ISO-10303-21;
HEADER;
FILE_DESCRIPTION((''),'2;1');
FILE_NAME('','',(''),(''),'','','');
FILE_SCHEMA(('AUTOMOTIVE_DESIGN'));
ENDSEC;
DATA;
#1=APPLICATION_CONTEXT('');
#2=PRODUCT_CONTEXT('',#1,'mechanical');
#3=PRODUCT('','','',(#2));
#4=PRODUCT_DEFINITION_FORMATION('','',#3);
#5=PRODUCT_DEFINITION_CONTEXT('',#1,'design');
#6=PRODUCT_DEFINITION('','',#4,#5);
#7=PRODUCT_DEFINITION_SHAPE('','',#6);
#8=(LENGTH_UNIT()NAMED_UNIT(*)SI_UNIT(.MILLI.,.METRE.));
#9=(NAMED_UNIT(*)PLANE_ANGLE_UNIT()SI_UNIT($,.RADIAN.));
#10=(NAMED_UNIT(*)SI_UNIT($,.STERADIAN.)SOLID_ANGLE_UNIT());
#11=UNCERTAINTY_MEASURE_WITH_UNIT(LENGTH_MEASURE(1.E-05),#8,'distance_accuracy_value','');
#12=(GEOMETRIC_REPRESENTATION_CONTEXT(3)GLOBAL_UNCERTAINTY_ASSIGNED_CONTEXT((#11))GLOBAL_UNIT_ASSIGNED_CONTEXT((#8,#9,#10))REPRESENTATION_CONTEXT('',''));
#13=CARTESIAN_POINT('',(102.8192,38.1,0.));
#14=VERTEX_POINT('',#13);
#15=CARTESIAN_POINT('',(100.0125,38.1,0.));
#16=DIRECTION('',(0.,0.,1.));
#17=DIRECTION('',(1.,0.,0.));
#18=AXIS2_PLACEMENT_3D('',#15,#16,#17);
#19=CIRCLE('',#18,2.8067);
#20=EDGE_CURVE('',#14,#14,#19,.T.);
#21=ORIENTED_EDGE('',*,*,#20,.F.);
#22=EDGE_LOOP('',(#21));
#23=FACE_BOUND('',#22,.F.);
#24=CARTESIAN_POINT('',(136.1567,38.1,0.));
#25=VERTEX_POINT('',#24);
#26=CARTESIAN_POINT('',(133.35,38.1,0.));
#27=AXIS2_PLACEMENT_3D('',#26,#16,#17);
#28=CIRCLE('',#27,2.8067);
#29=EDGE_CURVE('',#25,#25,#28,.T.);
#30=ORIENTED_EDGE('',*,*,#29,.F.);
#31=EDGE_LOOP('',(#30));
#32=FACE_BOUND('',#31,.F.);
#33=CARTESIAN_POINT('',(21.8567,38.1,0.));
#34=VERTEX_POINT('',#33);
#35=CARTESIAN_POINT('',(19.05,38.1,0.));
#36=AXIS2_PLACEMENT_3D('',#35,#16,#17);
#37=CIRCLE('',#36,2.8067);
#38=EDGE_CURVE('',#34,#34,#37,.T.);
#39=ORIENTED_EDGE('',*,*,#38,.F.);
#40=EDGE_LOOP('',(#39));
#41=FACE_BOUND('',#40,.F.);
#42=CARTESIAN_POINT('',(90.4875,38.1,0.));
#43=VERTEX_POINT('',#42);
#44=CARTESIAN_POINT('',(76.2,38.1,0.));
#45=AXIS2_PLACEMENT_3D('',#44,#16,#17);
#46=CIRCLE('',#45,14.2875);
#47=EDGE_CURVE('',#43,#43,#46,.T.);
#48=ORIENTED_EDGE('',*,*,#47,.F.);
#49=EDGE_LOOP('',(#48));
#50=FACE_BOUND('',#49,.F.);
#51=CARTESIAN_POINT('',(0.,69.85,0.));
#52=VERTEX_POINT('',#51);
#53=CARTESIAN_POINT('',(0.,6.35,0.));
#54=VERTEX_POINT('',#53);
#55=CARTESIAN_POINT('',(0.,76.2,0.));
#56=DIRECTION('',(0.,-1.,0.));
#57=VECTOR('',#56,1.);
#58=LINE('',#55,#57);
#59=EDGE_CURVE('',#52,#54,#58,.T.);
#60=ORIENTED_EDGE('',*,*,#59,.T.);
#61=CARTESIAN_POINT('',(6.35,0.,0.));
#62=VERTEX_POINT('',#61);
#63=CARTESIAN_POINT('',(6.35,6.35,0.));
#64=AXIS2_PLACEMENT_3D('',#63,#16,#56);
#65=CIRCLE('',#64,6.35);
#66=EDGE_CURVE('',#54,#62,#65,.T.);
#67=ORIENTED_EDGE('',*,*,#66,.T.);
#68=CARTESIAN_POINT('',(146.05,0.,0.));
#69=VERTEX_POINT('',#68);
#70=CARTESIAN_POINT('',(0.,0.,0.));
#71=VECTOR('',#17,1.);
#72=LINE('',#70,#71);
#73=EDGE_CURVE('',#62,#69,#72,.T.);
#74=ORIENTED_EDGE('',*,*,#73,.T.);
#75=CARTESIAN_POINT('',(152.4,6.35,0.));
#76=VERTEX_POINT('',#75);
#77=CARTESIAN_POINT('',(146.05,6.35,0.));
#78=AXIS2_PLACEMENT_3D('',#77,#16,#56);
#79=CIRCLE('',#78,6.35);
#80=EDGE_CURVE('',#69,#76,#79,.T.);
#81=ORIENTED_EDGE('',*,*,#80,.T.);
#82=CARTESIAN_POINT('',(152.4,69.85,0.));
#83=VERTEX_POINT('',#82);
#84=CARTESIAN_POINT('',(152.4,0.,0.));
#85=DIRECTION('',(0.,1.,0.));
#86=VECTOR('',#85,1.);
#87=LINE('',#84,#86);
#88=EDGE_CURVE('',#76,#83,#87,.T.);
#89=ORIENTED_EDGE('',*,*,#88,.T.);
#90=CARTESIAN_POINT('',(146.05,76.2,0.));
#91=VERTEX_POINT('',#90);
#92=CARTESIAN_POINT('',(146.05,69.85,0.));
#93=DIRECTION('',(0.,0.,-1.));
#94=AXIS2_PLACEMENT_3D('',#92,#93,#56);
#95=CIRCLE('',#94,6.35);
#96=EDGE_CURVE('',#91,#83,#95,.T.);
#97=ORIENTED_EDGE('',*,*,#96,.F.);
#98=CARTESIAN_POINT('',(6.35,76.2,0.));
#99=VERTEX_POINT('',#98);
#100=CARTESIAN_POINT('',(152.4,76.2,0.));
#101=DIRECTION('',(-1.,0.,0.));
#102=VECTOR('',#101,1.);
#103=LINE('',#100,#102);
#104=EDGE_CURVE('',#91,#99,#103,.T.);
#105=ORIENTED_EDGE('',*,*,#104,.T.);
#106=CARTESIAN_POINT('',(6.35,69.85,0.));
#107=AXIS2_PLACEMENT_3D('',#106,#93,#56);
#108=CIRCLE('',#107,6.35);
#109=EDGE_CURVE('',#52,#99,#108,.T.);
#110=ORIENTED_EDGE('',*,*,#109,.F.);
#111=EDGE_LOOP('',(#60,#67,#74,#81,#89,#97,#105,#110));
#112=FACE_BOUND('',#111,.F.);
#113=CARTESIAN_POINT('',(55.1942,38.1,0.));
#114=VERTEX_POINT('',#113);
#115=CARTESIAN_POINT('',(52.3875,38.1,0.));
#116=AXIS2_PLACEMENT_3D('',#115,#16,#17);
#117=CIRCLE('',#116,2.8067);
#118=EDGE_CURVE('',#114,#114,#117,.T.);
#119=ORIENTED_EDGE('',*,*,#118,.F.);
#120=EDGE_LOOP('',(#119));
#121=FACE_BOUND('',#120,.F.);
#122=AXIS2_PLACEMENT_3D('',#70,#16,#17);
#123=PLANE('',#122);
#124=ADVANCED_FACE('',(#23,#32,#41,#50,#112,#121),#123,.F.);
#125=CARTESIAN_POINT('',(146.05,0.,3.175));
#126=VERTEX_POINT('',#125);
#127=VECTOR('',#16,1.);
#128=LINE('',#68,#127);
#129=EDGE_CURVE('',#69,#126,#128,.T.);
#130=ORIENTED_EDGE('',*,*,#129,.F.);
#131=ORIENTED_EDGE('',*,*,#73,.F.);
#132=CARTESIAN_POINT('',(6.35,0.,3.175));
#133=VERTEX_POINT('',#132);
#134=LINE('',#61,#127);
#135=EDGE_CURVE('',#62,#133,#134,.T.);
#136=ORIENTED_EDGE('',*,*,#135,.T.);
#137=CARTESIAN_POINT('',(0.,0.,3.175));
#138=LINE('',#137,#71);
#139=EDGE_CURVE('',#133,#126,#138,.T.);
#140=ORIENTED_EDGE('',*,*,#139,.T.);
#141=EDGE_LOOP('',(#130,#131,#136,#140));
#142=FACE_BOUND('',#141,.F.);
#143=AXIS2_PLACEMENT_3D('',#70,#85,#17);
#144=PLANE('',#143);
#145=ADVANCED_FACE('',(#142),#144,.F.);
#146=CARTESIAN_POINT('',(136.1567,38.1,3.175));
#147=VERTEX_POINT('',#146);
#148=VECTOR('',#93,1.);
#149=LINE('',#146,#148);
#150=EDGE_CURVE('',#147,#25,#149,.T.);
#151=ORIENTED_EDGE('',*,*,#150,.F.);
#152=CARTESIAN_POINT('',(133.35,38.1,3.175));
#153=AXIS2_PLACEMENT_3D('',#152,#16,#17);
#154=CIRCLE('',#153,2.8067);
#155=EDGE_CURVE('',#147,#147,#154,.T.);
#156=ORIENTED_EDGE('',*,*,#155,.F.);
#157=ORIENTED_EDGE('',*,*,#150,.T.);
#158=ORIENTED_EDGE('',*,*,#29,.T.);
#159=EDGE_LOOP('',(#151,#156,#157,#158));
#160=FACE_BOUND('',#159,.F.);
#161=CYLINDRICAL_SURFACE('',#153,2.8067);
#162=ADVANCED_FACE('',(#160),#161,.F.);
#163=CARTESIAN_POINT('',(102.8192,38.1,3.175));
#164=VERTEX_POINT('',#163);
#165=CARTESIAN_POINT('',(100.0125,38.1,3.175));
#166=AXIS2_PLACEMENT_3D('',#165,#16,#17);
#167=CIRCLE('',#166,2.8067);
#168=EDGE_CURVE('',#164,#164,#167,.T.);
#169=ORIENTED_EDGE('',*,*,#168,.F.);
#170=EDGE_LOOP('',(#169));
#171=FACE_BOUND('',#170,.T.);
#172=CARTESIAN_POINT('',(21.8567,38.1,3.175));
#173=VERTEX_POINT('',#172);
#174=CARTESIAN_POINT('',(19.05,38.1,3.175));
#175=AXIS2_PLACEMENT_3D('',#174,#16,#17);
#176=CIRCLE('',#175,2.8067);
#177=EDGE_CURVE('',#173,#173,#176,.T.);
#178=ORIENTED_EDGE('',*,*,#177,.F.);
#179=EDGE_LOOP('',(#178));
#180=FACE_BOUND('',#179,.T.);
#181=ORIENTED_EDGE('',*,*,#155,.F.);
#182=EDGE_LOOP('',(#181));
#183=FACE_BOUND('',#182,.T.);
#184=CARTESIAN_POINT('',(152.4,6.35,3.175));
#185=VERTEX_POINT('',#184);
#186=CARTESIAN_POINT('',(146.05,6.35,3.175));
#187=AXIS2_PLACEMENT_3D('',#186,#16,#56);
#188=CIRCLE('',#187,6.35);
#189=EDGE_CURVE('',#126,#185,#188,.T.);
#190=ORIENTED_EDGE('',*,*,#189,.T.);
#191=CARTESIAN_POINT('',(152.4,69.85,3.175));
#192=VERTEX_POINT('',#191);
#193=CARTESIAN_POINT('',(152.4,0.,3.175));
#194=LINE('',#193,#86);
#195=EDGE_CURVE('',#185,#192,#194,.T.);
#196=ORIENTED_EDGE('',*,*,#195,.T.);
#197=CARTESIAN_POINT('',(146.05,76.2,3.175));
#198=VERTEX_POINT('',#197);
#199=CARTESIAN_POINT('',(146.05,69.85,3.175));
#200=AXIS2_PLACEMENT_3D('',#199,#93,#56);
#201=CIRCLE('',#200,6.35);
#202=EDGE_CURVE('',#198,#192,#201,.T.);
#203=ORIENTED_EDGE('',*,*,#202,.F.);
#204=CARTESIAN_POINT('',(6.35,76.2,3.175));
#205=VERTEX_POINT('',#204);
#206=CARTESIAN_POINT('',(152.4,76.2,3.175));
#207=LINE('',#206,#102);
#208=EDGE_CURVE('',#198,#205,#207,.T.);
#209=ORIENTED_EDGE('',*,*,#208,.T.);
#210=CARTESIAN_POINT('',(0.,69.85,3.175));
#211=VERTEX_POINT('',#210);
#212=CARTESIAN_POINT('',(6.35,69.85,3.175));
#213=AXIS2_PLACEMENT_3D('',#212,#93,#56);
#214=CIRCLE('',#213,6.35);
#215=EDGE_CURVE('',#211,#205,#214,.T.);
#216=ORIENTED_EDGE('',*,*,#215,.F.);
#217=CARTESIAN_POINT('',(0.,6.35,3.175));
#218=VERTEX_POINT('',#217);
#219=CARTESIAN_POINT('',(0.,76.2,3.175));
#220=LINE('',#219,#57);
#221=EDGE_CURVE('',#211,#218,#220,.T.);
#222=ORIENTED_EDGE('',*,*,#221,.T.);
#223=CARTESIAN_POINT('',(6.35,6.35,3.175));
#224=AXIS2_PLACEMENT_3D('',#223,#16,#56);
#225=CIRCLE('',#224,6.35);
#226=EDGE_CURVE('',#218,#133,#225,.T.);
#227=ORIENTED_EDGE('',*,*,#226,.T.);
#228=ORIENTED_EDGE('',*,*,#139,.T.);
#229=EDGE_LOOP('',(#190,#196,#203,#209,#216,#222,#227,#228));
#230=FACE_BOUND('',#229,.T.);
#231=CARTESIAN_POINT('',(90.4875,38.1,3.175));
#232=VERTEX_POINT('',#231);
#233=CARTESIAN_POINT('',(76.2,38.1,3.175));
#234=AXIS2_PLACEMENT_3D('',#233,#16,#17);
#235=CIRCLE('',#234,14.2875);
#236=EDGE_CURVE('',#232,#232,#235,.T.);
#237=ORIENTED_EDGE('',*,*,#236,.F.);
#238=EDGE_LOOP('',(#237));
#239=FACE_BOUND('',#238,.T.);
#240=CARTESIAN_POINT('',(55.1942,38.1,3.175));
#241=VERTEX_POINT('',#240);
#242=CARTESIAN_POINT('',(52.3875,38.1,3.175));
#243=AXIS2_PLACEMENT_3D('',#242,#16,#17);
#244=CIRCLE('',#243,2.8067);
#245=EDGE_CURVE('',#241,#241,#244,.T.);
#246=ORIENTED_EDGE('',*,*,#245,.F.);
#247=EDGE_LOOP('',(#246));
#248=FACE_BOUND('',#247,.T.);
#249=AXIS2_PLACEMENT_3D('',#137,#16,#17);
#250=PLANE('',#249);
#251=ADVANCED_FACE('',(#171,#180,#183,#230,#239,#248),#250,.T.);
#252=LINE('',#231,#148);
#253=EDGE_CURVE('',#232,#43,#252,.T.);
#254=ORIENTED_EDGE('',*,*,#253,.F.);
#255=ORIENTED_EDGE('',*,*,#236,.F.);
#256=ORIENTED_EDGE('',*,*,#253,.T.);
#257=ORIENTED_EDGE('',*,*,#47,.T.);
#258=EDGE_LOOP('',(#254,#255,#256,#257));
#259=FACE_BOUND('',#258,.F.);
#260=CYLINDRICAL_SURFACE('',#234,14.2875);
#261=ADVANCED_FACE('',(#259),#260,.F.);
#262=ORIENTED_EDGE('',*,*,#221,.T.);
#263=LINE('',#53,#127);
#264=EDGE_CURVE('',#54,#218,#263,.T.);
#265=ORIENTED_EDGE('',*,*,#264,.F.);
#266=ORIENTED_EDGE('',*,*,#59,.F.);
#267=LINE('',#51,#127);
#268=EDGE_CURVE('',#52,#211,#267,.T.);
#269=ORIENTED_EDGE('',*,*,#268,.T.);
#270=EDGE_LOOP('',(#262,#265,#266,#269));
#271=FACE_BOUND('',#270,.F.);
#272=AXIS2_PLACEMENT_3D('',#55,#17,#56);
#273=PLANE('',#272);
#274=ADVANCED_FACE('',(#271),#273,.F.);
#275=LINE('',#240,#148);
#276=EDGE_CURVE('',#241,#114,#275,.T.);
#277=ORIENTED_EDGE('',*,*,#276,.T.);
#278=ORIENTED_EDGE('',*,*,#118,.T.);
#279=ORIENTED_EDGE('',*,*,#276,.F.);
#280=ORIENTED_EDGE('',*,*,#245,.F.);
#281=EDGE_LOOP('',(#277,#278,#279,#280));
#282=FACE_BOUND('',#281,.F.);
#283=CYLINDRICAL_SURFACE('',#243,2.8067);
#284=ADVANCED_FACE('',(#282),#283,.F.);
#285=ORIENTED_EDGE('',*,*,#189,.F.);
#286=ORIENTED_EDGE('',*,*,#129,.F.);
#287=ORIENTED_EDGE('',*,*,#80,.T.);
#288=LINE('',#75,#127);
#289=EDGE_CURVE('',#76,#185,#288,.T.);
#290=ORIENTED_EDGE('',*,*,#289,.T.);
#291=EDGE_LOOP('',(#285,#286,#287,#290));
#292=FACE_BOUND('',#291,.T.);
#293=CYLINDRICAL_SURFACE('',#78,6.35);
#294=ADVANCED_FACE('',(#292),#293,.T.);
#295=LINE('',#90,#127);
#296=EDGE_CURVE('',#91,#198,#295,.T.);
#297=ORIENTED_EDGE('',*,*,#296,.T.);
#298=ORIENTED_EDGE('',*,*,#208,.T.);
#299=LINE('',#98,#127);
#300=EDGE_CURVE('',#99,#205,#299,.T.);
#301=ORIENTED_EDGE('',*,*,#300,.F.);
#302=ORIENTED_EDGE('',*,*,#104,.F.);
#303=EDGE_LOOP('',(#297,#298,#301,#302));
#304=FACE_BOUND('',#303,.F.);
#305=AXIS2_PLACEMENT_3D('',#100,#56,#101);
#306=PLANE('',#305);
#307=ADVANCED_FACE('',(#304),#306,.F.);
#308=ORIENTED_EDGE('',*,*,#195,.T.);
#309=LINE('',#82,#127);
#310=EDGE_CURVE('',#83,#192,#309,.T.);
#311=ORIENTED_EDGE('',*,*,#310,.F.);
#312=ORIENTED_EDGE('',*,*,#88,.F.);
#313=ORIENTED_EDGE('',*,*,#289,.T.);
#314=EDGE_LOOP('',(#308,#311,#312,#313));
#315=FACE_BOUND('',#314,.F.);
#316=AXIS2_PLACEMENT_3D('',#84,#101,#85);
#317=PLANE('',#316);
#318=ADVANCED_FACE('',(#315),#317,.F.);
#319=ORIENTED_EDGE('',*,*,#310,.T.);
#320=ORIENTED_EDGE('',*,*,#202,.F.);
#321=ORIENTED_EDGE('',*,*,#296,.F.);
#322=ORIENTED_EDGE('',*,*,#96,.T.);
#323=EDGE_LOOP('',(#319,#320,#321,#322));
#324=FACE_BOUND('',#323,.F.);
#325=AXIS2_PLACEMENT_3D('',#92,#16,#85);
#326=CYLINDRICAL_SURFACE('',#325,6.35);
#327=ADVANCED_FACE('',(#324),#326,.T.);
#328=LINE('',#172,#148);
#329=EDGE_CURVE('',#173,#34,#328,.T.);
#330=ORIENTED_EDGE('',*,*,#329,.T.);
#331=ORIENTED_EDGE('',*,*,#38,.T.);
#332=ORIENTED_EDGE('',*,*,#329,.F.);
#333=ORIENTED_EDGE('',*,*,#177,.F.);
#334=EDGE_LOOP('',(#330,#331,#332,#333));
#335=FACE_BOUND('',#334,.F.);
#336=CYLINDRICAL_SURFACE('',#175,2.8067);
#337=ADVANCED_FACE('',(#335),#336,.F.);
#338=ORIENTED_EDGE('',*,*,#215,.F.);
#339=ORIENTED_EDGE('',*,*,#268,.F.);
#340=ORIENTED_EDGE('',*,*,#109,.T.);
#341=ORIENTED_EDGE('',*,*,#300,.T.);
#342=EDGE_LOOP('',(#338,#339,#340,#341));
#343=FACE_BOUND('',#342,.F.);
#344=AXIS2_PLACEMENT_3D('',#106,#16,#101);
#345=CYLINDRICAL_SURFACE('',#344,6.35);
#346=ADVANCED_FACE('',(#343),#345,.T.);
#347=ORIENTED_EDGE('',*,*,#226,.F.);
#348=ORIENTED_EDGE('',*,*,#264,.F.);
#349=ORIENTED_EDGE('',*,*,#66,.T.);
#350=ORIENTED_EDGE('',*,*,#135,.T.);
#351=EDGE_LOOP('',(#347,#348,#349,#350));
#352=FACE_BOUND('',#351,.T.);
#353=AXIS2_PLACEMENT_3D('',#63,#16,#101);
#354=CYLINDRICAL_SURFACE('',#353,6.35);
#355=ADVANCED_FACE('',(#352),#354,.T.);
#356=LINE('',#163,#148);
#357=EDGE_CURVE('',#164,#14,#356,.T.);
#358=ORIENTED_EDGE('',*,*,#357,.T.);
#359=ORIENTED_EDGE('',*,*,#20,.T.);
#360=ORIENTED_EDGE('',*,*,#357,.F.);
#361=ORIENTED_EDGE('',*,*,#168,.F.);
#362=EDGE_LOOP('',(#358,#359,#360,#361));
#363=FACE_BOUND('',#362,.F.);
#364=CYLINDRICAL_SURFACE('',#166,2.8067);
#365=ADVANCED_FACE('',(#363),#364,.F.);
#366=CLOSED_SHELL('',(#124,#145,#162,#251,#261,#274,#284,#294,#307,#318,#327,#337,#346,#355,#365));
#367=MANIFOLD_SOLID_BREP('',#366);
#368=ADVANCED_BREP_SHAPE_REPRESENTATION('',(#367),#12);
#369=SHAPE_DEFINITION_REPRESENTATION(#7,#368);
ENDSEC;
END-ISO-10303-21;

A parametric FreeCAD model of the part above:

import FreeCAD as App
import Part
import Sketcher
Q = App.Units.Quantity


def edges_at(feature, points):
    """Names of the edges that pass closest to the given points."""
    edges = feature.Shape.Edges
    near = lambda p: min(range(len(edges)), key=lambda i: edges[i].distToShape(Part.Vertex(*p))[0])
    return sorted({f"Edge{near(p) + 1}" for p in points})


def add_polygon(sketch, points):
    """Adds a closed chain of lines whose ends are joined by coincident constraints."""
    first, n = sketch.GeometryCount, len(points)
    for a, b in zip(points, points[1:] + points[:1]):
        sketch.addGeometry(Part.LineSegment(App.Vector(*a, 0), App.Vector(*b, 0)), False)
    for i in range(n):
        sketch.addConstraint(Sketcher.Constraint("Coincident", first + i, 2, first + (i + 1) % n, 1))

doc = App.newDocument("Part")
params = doc.addObject("Spreadsheet::Sheet", "Params")
for row, (alias, value) in enumerate([
    ("sketch1_width", "6 in"),
    ("sketch1_height", "3 in"),
    ("pad1_length", "0.125 in"),
    ("sketch2_diameter", "1.125 in"),
    ("sketch2_diameter2", "0.221 in"),
    ("pocket1_length", "0.125 in"),
    ("fillet_radius", "0.25 in"),
], start=1):
    params.set(f"A{row}", alias)
    params.set(f"B{row}", "=" + value)
    params.setAlias(f"B{row}", alias)

body = doc.addObject("PartDesign::Body", "Body")

# Sketch on XY plane
sketch1 = body.newObject("Sketcher::SketchObject", "Sketch")
sketch1.AttachmentSupport = (doc.getObject("XY_Plane"), [""])
sketch1.MapMode = "FlatFace"
add_polygon(sketch1, [(0, 76), (0, 0), (152, 0), (152, 76)])  # lines 0-3
sketch1.addConstraint([
    Sketcher.Constraint("Vertical", 0),
    Sketcher.Constraint("Horizontal", 1),
    Sketcher.Constraint("Vertical", 2),
    Sketcher.Constraint("Horizontal", 3),
    Sketcher.Constraint("Coincident", 0, 2, -1, 1),
    Sketcher.Constraint("DistanceX", 1, 1, 1, 2, Q("6 in")),
    Sketcher.Constraint("DistanceY", 0, 2, 0, 1, Q("3 in")),
])
sketch1.setExpression("Constraints[9]", "Params.sketch1_width")
sketch1.setExpression("Constraints[10]", "Params.sketch1_height")
pad1 = body.newObject("PartDesign::Pad", "Pad")
pad1.Profile = sketch1
pad1.setExpression("Length", "Params.pad1_length")

# Sketch on XY plane
sketch2 = body.newObject("Sketcher::SketchObject", "Sketch001")
sketch2.AttachmentSupport = (doc.getObject("XY_Plane"), [""])
sketch2.MapMode = "FlatFace"
sketch2.AttachmentOffset = App.Placement(App.Vector(0, 0, 0.125 * 25.4), App.Rotation())
sketch2.addGeometry([
    Part.Circle(App.Vector(76.2, 38.1, 0), App.Vector(0, 0, 1), 14.3),  # 0
    Part.Circle(App.Vector(52.4, 38.1, 0), App.Vector(0, 0, 1), 2.8),  # 1
    Part.Circle(App.Vector(100, 38.1, 0), App.Vector(0, 0, 1), 2.8),  # 2
    Part.Circle(App.Vector(19.1, 38.1, 0), App.Vector(0, 0, 1), 2.8),  # 3
    Part.Circle(App.Vector(133.3, 38.1, 0), App.Vector(0, 0, 1), 2.8),  # 4
], False)
sketch2.addConstraint([
    Sketcher.Constraint("Equal", 1, 2),
    Sketcher.Constraint("Equal", 2, 3),
    Sketcher.Constraint("Equal", 3, 4),
    Sketcher.Constraint("Horizontal", 0, 3, 1, 3),
    Sketcher.Constraint("Horizontal", 1, 3, 2, 3),
    Sketcher.Constraint("Horizontal", 2, 3, 3, 3),
    Sketcher.Constraint("Horizontal", 3, 3, 4, 3),
    Sketcher.Constraint("Diameter", 0, Q("1.125 in")),
    Sketcher.Constraint("Diameter", 1, Q("0.221 in")),
    Sketcher.Constraint("DistanceX", -1, 1, 0, 3, Q("3 in")),
    Sketcher.Constraint("DistanceY", -1, 1, 0, 3, Q("1.5 in")),
    Sketcher.Constraint("DistanceX", 3, 3, 4, 3, Q("4.5 in")),
    Sketcher.Constraint("DistanceX", -1, 1, 3, 3, Q("0.75 in")),
    Sketcher.Constraint("DistanceX", -1, 1, 1, 3, Q("2.0625 in")),
    Sketcher.Constraint("DistanceX", -1, 1, 2, 3, Q("3.9375 in")),
])
sketch2.setExpression("Constraints[7]", "Params.sketch2_diameter")
sketch2.setExpression("Constraints[8]", "Params.sketch2_diameter2")
pocket1 = body.newObject("PartDesign::Pocket", "Pocket")
pocket1.Profile = sketch2
pocket1.setExpression("Length", "Params.pocket1_length")
doc.recompute()

fillet = body.newObject("PartDesign::Fillet", "Fillet")
fillet.Base = (pocket1, edges_at(pocket1, [
    (152.4, 76.2, 1.587),
    (152.4, 0, 1.587),
    (0, 76.2, 1.587),
    (0, 0, 1.587),
]))
fillet.setExpression("Radius", "Params.fillet_radius")

doc.recompute()
